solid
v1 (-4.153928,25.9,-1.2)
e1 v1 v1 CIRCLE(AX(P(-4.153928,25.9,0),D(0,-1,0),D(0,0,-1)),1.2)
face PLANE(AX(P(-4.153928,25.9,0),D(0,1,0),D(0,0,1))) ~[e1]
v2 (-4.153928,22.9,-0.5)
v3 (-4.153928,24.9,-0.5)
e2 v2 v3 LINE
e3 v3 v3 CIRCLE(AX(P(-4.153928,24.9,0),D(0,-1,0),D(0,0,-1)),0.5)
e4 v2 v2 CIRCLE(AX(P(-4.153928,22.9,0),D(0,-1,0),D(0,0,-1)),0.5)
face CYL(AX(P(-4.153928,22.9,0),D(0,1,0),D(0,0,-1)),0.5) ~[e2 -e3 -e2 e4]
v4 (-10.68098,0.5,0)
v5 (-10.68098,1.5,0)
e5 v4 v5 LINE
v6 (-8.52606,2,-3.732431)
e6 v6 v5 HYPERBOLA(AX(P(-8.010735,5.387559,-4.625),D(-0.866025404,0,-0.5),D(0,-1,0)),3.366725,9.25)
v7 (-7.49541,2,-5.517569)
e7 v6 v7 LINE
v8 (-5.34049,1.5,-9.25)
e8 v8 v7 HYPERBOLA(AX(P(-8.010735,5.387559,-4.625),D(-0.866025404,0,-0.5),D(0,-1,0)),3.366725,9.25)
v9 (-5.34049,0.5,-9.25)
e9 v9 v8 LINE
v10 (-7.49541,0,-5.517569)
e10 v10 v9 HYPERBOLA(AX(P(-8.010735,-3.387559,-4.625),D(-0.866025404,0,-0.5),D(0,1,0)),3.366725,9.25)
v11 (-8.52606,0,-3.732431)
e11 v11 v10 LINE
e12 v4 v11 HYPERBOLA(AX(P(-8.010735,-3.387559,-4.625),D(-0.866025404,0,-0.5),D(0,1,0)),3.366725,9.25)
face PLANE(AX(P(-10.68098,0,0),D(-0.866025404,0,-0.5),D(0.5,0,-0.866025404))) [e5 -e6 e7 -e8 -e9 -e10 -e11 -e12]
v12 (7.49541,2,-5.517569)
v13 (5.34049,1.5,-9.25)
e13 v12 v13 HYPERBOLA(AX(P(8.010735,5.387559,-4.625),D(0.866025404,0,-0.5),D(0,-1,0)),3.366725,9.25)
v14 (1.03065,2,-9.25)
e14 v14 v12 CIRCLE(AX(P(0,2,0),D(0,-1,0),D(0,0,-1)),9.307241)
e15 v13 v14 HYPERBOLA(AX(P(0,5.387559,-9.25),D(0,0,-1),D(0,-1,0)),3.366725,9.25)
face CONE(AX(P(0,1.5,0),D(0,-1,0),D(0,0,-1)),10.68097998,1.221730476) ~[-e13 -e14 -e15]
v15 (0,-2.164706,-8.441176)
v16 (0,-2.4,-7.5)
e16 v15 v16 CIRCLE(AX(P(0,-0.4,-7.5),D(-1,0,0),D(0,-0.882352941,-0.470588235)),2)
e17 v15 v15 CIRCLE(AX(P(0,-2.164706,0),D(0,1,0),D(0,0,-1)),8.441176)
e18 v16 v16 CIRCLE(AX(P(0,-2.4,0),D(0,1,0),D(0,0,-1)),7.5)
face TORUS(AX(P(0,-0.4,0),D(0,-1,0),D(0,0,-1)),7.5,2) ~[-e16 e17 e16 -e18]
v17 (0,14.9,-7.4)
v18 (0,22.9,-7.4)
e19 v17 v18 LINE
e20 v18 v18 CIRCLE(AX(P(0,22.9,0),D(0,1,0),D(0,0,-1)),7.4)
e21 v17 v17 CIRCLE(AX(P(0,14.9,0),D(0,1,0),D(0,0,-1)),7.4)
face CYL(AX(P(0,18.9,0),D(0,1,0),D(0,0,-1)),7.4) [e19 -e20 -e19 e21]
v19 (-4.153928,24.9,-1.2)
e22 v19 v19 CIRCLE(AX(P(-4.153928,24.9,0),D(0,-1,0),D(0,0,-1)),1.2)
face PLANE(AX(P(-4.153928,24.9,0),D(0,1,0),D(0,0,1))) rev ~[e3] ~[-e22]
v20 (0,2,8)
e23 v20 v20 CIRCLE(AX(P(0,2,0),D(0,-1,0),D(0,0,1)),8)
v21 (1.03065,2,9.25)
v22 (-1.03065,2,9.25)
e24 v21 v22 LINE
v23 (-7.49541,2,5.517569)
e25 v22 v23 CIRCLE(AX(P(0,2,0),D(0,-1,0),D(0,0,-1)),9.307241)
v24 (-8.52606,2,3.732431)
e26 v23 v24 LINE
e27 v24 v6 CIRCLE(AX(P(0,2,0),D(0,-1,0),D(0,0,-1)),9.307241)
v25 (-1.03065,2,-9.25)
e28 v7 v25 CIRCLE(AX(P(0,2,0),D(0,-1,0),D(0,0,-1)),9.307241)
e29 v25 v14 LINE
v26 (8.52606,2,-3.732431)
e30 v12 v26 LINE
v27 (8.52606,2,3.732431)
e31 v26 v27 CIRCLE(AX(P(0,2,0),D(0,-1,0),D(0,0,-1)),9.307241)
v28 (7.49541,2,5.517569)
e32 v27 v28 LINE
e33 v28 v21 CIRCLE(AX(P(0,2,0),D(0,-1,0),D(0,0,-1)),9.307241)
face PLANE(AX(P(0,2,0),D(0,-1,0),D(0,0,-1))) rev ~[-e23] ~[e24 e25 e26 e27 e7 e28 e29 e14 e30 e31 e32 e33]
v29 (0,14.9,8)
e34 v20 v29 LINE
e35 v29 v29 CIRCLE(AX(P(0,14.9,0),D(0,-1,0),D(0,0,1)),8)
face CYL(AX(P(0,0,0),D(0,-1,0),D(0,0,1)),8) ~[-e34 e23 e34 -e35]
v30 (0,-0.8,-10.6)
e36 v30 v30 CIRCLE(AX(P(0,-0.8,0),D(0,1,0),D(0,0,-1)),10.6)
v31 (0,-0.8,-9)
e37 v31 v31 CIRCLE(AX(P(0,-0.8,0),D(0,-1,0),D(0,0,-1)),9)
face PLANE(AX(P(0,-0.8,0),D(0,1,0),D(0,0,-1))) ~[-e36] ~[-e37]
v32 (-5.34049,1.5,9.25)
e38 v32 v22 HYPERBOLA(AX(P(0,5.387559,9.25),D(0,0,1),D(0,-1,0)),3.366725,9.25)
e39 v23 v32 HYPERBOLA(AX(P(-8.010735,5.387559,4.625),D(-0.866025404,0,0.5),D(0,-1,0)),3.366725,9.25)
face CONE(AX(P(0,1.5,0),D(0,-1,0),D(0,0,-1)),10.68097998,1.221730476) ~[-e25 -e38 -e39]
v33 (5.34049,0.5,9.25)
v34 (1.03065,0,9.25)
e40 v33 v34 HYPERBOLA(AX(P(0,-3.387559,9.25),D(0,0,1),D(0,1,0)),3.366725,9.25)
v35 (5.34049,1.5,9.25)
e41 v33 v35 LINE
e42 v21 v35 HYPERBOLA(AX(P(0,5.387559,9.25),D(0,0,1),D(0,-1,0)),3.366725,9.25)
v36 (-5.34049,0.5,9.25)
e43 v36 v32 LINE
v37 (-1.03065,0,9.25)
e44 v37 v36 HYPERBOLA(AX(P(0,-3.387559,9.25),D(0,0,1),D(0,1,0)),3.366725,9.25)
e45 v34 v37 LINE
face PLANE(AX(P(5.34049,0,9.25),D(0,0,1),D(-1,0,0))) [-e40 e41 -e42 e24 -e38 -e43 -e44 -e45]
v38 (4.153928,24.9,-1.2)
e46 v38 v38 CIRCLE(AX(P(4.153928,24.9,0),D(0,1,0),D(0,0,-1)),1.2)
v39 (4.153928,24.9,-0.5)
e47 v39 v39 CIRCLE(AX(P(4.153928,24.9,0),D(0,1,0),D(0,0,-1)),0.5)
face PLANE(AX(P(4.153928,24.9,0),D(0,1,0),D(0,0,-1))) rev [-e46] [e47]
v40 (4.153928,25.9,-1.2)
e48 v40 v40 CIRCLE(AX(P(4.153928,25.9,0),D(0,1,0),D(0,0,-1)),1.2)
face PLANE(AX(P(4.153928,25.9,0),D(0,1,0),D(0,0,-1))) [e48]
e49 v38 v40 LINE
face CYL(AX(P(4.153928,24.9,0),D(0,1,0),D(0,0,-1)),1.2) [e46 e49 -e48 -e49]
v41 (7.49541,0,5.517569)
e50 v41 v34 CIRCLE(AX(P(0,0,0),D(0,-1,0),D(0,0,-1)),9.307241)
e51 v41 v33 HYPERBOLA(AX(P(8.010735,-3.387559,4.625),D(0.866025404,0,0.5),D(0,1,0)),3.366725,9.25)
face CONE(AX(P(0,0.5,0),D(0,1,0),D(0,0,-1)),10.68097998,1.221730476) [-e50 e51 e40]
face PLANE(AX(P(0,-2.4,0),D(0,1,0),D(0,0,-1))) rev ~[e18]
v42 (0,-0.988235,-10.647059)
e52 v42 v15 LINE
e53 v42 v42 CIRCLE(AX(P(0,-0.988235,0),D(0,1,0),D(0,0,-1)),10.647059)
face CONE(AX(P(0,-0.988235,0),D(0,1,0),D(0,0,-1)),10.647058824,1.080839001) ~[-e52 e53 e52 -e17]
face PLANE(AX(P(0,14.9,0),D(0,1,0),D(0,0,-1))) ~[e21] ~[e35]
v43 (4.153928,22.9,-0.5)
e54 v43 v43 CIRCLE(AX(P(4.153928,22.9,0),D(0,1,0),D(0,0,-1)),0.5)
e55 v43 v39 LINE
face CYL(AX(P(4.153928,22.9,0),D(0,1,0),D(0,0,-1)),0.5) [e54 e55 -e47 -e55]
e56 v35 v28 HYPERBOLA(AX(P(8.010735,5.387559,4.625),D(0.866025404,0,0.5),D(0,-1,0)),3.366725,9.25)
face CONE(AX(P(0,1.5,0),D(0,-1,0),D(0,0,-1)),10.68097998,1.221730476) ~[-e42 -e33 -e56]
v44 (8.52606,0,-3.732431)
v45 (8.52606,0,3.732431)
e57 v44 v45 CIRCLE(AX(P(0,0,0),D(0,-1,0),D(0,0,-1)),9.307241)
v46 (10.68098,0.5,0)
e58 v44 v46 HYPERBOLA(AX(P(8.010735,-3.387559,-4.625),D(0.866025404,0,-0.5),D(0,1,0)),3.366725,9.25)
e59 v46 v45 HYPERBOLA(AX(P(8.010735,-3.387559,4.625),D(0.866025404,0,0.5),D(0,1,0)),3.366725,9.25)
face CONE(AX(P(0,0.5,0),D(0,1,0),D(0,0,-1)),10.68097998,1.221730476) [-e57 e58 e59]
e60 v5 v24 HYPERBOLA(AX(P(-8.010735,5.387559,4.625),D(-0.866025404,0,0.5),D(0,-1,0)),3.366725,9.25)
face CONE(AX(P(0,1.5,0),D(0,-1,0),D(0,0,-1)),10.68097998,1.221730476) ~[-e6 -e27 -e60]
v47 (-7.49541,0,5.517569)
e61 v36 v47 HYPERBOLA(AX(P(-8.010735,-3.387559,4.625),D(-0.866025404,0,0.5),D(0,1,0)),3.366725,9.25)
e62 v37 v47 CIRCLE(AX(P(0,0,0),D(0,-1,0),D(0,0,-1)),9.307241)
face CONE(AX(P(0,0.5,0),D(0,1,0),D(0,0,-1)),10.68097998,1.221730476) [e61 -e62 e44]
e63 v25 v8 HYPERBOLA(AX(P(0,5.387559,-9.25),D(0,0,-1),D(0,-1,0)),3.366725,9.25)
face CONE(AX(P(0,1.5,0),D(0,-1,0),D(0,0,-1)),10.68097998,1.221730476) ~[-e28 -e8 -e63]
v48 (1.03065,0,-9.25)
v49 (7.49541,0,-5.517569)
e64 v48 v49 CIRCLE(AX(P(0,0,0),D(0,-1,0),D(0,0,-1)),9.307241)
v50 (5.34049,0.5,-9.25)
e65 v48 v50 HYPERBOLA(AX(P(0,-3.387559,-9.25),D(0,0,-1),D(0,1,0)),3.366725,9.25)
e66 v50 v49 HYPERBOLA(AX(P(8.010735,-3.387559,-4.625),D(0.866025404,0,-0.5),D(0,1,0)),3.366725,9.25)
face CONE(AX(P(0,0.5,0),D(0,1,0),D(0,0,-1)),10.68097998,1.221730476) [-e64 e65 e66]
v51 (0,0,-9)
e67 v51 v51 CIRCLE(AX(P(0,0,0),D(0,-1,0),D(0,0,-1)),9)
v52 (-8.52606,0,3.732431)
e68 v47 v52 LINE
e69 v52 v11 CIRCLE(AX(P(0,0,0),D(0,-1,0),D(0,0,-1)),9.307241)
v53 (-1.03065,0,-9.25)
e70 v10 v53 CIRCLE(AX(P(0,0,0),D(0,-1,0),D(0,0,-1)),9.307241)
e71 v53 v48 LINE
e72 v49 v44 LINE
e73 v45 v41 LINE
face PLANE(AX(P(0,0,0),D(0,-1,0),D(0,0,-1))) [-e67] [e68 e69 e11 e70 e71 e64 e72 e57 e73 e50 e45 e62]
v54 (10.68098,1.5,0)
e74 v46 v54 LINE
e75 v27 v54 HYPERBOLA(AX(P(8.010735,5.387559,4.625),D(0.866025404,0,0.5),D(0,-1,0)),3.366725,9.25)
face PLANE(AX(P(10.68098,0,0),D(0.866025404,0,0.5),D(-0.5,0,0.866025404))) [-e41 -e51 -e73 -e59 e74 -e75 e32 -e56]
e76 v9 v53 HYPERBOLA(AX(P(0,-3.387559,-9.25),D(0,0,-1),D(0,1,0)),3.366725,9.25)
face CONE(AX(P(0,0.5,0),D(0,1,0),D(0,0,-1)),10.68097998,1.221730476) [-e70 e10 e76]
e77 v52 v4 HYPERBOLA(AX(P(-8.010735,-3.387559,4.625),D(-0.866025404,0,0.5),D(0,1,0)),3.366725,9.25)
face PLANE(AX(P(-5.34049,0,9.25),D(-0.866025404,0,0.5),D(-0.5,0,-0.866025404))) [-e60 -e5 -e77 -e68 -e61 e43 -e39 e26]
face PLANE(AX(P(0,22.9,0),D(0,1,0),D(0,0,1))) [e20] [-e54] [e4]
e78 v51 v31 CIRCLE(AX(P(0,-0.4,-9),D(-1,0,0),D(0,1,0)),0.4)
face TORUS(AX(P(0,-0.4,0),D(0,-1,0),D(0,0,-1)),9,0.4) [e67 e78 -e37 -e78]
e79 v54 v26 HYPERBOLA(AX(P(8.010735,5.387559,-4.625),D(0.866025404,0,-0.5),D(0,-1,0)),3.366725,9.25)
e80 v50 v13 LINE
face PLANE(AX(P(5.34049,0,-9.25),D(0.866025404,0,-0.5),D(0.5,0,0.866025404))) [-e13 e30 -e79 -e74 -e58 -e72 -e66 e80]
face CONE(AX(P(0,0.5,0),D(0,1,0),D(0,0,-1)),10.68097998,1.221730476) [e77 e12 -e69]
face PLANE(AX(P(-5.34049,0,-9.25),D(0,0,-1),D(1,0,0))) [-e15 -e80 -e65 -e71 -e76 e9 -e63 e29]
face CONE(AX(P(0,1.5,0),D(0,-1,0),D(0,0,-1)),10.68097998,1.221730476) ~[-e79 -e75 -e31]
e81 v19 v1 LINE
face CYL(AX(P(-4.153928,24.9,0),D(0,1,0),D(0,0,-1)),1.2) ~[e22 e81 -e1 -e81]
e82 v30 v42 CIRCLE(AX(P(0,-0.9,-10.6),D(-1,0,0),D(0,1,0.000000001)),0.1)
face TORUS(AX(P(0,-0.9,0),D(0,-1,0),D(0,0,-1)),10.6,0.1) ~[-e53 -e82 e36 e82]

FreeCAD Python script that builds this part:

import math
import FreeCAD as App
import Part
import Sketcher

V = App.Vector
Q = App.Units.Quantity


def edges_at(feature, points):
    """Names of the edges that pass closest to the given points."""
    edges = feature.Shape.Edges
    near = lambda p: min(range(len(edges)), key=lambda i: edges[i].distToShape(Part.Vertex(*p))[0])
    return sorted({f"Edge{near(p) + 1}" for p in points})

doc = App.newDocument("Part")
body = doc.addObject("PartDesign::Body", "Body")

sketch1 = body.newObject("Sketcher::SketchObject", "Sketch")
sketch1.AttachmentSupport = (doc.getObject("XZ_Plane"), [""])
sketch1.MapMode = "FlatFace"
sketch1.addGeometry(Part.Circle(V(0, 0, 0), V(0, 0, 1), 8), False)
sketch1.addConstraint(Sketcher.Constraint("Coincident", 0, 3, -1, 1))
sketch1.addConstraint(Sketcher.Constraint("Diameter", 0, Q("16 mm")))
pad1 = body.newObject("PartDesign::Pad", "Pad")
pad1.Profile = sketch1
pad1.Length = 22.9
pad1.Reversed = True

sketch2 = body.newObject("Sketcher::SketchObject", "Sketch001")
sketch2.AttachmentSupport = (doc.getObject("XZ_Plane"), [""])
sketch2.MapMode = "FlatFace"
sketch2.addGeometry(Part.Circle(V(0, 0, 0), V(0, 0, 1), 11), False)
sketch2.addConstraint(Sketcher.Constraint("Coincident", 0, 3, -1, 1))
sketch2.addConstraint(Sketcher.Constraint("Diameter", 0, Q("21.36196 mm")))
pad2 = body.newObject("PartDesign::Pad", "Pad001")
pad2.Profile = sketch2
pad2.Length = 2
pad2.Reversed = True
doc.recompute()

chamfer = body.newObject("PartDesign::Chamfer", "Chamfer")
chamfer.Base = (pad2, edges_at(pad2, [(0, 0, 10.681)]))
chamfer.ChamferType = "Two distances"
chamfer.Size = 0.5
chamfer.Size2 = 1.373739
doc.recompute()

chamfer2 = body.newObject("PartDesign::Chamfer", "Chamfer001")
chamfer2.Base = (chamfer, edges_at(chamfer, [(0, 2, 10.681)]))
chamfer2.ChamferType = "Two distances"
chamfer2.Size = 0.5
chamfer2.Size2 = 1.373739

sketch3 = body.newObject("Sketcher::SketchObject", "Sketch002")
sketch3.AttachmentSupport = (doc.getObject("XZ_Plane"), [""])
sketch3.MapMode = "FlatFace"
sketch3.addGeometry(Part.LineSegment(V(5, -9, 0), V(11, 0, 0)), False)
sketch3.addGeometry(Part.ArcOfCircle(Part.Circle(V(0, 0, 0), V(0, 0, 1), 11), math.radians(-60), math.radians(0)), False)
sketch3.addGeometry(Part.LineSegment(V(-5, -9, 0), V(5, -9, 0)), False)
sketch3.addGeometry(Part.ArcOfCircle(Part.Circle(V(0, 0, 0), V(0, 0, 1), 11), math.radians(-120), math.radians(-60)), False)
sketch3.addGeometry(Part.ArcOfCircle(Part.Circle(V(0, 0, 0), V(0, 0, 1), 11), math.radians(0), math.radians(60)), False)
sketch3.addGeometry(Part.LineSegment(V(11, 0, 0), V(5, 9, 0)), False)
sketch3.addGeometry(Part.ArcOfCircle(Part.Circle(V(0, 0, 0), V(0, 0, 1), 11), math.radians(60), math.radians(120)), False)
sketch3.addGeometry(Part.LineSegment(V(5, 9, 0), V(-5, 9, 0)), False)
sketch3.addGeometry(Part.ArcOfCircle(Part.Circle(V(0, 0, 0), V(0, 0, 1), 11), math.radians(120), math.radians(180)), False)
sketch3.addGeometry(Part.LineSegment(V(-5, 9, 0), V(-11, 0, 0)), False)
sketch3.addGeometry(Part.LineSegment(V(-11, 0, 0), V(-5, -9, 0)), False)
sketch3.addGeometry(Part.ArcOfCircle(Part.Circle(V(0, 0, 0), V(0, 0, 1), 11), math.radians(180), math.radians(240)), False)
sketch3.addConstraint(Sketcher.Constraint("Coincident", 0, 1, 1, 1))
sketch3.addConstraint(Sketcher.Constraint("Coincident", 1, 2, 0, 2))
sketch3.addConstraint(Sketcher.Constraint("Coincident", 2, 1, 3, 1))
sketch3.addConstraint(Sketcher.Constraint("Coincident", 3, 2, 2, 2))
sketch3.addConstraint(Sketcher.Constraint("Coincident", 4, 1, 5, 1))
sketch3.addConstraint(Sketcher.Constraint("Coincident", 5, 2, 4, 2))
sketch3.addConstraint(Sketcher.Constraint("Coincident", 6, 1, 7, 1))
sketch3.addConstraint(Sketcher.Constraint("Coincident", 7, 2, 6, 2))
sketch3.addConstraint(Sketcher.Constraint("Coincident", 8, 1, 9, 1))
sketch3.addConstraint(Sketcher.Constraint("Coincident", 9, 2, 8, 2))
sketch3.addConstraint(Sketcher.Constraint("Coincident", 10, 1, 11, 1))
sketch3.addConstraint(Sketcher.Constraint("Coincident", 11, 2, 10, 2))
sketch3.addConstraint(Sketcher.Constraint("Horizontal", 2))
sketch3.addConstraint(Sketcher.Constraint("Horizontal", 7))
sketch3.addConstraint(Sketcher.Constraint("Coincident", 1, 3, -1, 1))
sketch3.addConstraint(Sketcher.Constraint("Coincident", 3, 3, -1, 1))
sketch3.addConstraint(Sketcher.Constraint("Coincident", 4, 3, -1, 1))
sketch3.addConstraint(Sketcher.Constraint("Coincident", 6, 3, -1, 1))
sketch3.addConstraint(Sketcher.Constraint("Coincident", 8, 3, -1, 1))
sketch3.addConstraint(Sketcher.Constraint("Coincident", 11, 3, -1, 1))
sketch3.addConstraint(Sketcher.Constraint("Coincident", 3, 2, 0, 1))
sketch3.addConstraint(Sketcher.Constraint("Coincident", 4, 1, 1, 2))
sketch3.addConstraint(Sketcher.Constraint("Coincident", 6, 1, 5, 2))
sketch3.addConstraint(Sketcher.Constraint("Coincident", 8, 1, 7, 2))
sketch3.addConstraint(Sketcher.Constraint("Coincident", 10, 1, 9, 2))
sketch3.addConstraint(Sketcher.Constraint("PointOnObject", 1, 2, -1))
sketch3.addConstraint(Sketcher.Constraint("PointOnObject", 9, 2, -1))
sketch3.addConstraint(Sketcher.Constraint("Parallel", 0, 9))
sketch3.addConstraint(Sketcher.Constraint("Parallel", 5, 10))
sketch3.addConstraint(Sketcher.Constraint("Angle", 0, Q("60 deg")))
sketch3.addConstraint(Sketcher.Constraint("DistanceY", 0, 1, -1, 1, Q("9.25 mm")))
pocket1 = body.newObject("PartDesign::Pocket", "Pocket")
pocket1.Profile = sketch3
pocket1.Length = 2

sketch4 = body.newObject("Sketcher::SketchObject", "Sketch003")
sketch4.AttachmentSupport = (doc.getObject("XY_Plane"), [""])
sketch4.MapMode = "FlatFace"
sketch4.addGeometry(Part.LineSegment(V(9, 0, 0), V(0, 0, 0)), False)
sketch4.addGeometry(Part.LineSegment(V(0, 0, 0), V(0, -0.8, 0)), False)
sketch4.addGeometry(Part.LineSegment(V(0, -0.8, 0), V(9, -0.8, 0)), False)
sketch4.addGeometry(Part.ArcOfCircle(Part.Circle(V(9, -0.4, 0), V(0, 0, 1), 0.4), math.radians(-90), math.radians(90)), False)
sketch4.addConstraint(Sketcher.Constraint("Coincident", 0, 2, 1, 1))
sketch4.addConstraint(Sketcher.Constraint("Coincident", 1, 2, 2, 1))
sketch4.addConstraint(Sketcher.Constraint("Tangent", 2, 2, 3, 1))
sketch4.addConstraint(Sketcher.Constraint("Tangent", 3, 2, 0, 1))
sketch4.addConstraint(Sketcher.Constraint("Horizontal", 0))
sketch4.addConstraint(Sketcher.Constraint("Vertical", 1))
sketch4.addConstraint(Sketcher.Constraint("Horizontal", 2))
sketch4.addConstraint(Sketcher.Constraint("Coincident", 0, 2, -1, 1))
sketch4.addConstraint(Sketcher.Constraint("Radius", 3, Q("0.4 mm")))
sketch4.addConstraint(Sketcher.Constraint("DistanceX", 0, 2, 0, 1, Q("9 mm")))
revolution = body.newObject("PartDesign::Revolution", "Revolution")
revolution.Profile = sketch4
revolution.ReferenceAxis = (sketch4, ["V_Axis"])
revolution.Angle = 360

sketch5 = body.newObject("Sketcher::SketchObject", "Sketch004")
sketch5.AttachmentSupport = (doc.getObject("XY_Plane"), [""])
sketch5.MapMode = "FlatFace"
sketch5.addGeometry(Part.LineSegment(V(10.6, -0.8, 0), V(0, -0.8, 0)), False)
sketch5.addGeometry(Part.LineSegment(V(0, -0.8, 0), V(0, -2.4, 0)), False)
sketch5.addGeometry(Part.LineSegment(V(0, -2.4, 0), V(7.5, -2.4, 0)), False)
sketch5.addGeometry(Part.ArcOfCircle(Part.Circle(V(7.5, -0.4, 0), V(0, 0, 1), 2), math.radians(-90), math.radians(-62)), False)
sketch5.addGeometry(Part.LineSegment(V(8.44, -2.16, 0), V(10.65, -0.99, 0)), False)
sketch5.addGeometry(Part.ArcOfCircle(Part.Circle(V(10.6, -0.9, 0), V(0, 0, 1), 0.1), math.radians(-62), math.radians(90)), False)
sketch5.addConstraint(Sketcher.Constraint("Coincident", 0, 2, 1, 1))
sketch5.addConstraint(Sketcher.Constraint("Coincident", 1, 2, 2, 1))
sketch5.addConstraint(Sketcher.Constraint("Tangent", 2, 2, 3, 1))
sketch5.addConstraint(Sketcher.Constraint("Tangent", 3, 2, 4, 1))
sketch5.addConstraint(Sketcher.Constraint("Tangent", 4, 2, 5, 1))
sketch5.addConstraint(Sketcher.Constraint("Tangent", 5, 2, 0, 1))
sketch5.addConstraint(Sketcher.Constraint("Horizontal", 0))
sketch5.addConstraint(Sketcher.Constraint("Vertical", 1))
sketch5.addConstraint(Sketcher.Constraint("Horizontal", 2))
sketch5.addConstraint(Sketcher.Constraint("PointOnObject", 0, 2, -2))
sketch5.addConstraint(Sketcher.Constraint("Radius", 3, Q("2 mm")))
sketch5.addConstraint(Sketcher.Constraint("Radius", 5, Q("0.1 mm")))
sketch5.addConstraint(Sketcher.Constraint("DistanceX", 0, 2, 0, 1, Q("10.6 mm")))
sketch5.addConstraint(Sketcher.Constraint("DistanceX", 2, 1, 2, 2, Q("7.5 mm")))
sketch5.addConstraint(Sketcher.Constraint("DistanceY", 1, 2, 1, 1, Q("1.6 mm")))
sketch5.addConstraint(Sketcher.Constraint("DistanceY", 3, 3, -1, 1, Q("0.4 mm")))
revolution2 = body.newObject("PartDesign::Revolution", "Revolution001")
revolution2.Profile = sketch5
revolution2.ReferenceAxis = (sketch5, ["V_Axis"])
revolution2.Angle = 360

sketch6 = body.newObject("Sketcher::SketchObject", "Sketch005")
sketch6.AttachmentSupport = (doc.getObject("XY_Plane"), [""])
sketch6.MapMode = "FlatFace"
sketch6.addGeometry(Part.LineSegment(V(7.4, 22.9, 0), V(7.4, 14.9, 0)), False)
sketch6.addGeometry(Part.LineSegment(V(7.4, 14.9, 0), V(8, 14.9, 0)), False)
sketch6.addGeometry(Part.LineSegment(V(8, 14.9, 0), V(8, 22.9, 0)), False)
sketch6.addGeometry(Part.LineSegment(V(8, 22.9, 0), V(7.4, 22.9, 0)), False)
sketch6.addConstraint(Sketcher.Constraint("Coincident", 0, 2, 1, 1))
sketch6.addConstraint(Sketcher.Constraint("Coincident", 1, 2, 2, 1))
sketch6.addConstraint(Sketcher.Constraint("Coincident", 2, 2, 3, 1))
sketch6.addConstraint(Sketcher.Constraint("Coincident", 3, 2, 0, 1))
sketch6.addConstraint(Sketcher.Constraint("Vertical", 0))
sketch6.addConstraint(Sketcher.Constraint("Horizontal", 1))
sketch6.addConstraint(Sketcher.Constraint("Vertical", 2))
sketch6.addConstraint(Sketcher.Constraint("Horizontal", 3))
sketch6.addConstraint(Sketcher.Constraint("DistanceY", 0, 2, 0, 1, Q("8 mm")))
sketch6.addConstraint(Sketcher.Constraint("DistanceX", 1, 1, 1, 2, Q("0.6 mm")))
sketch6.addConstraint(Sketcher.Constraint("DistanceX", -1, 1, 1, 2, Q("8 mm")))
sketch6.addConstraint(Sketcher.Constraint("DistanceY", -1, 1, 0, 2, Q("14.9 mm")))
groove = body.newObject("PartDesign::Groove", "Groove")
groove.Profile = sketch6
groove.ReferenceAxis = (sketch6, ["V_Axis"])
groove.Angle = 360

sketch7 = body.newObject("Sketcher::SketchObject", "Sketch006")
sketch7.AttachmentSupport = (doc.getObject("XY_Plane"), [""])
sketch7.MapMode = "FlatFace"
sketch7.addGeometry(Part.LineSegment(V(4.2, 22.9, 0), V(4.7, 22.9, 0)), False)
sketch7.addGeometry(Part.LineSegment(V(4.7, 22.9, 0), V(4.7, 24.9, 0)), False)
sketch7.addGeometry(Part.LineSegment(V(4.7, 24.9, 0), V(5.4, 24.9, 0)), False)
sketch7.addGeometry(Part.LineSegment(V(5.4, 24.9, 0), V(5.4, 25.9, 0)), False)
sketch7.addGeometry(Part.LineSegment(V(5.4, 25.9, 0), V(4.2, 25.9, 0)), False)
sketch7.addGeometry(Part.LineSegment(V(4.2, 25.9, 0), V(4.2, 22.9, 0)), False)
sketch7.addGeometry(Part.LineSegment(V(4.2, 22.9, 0), V(4.2, 25.9, 0)), True)
sketch7.addConstraint(Sketcher.Constraint("Coincident", 0, 2, 1, 1))
sketch7.addConstraint(Sketcher.Constraint("Coincident", 1, 2, 2, 1))
sketch7.addConstraint(Sketcher.Constraint("Coincident", 2, 2, 3, 1))
sketch7.addConstraint(Sketcher.Constraint("Coincident", 3, 2, 4, 1))
sketch7.addConstraint(Sketcher.Constraint("Coincident", 4, 2, 5, 1))
sketch7.addConstraint(Sketcher.Constraint("Coincident", 5, 2, 0, 1))
sketch7.addConstraint(Sketcher.Constraint("Horizontal", 0))
sketch7.addConstraint(Sketcher.Constraint("Vertical", 1))
sketch7.addConstraint(Sketcher.Constraint("Horizontal", 2))
sketch7.addConstraint(Sketcher.Constraint("Vertical", 3))
sketch7.addConstraint(Sketcher.Constraint("Horizontal", 4))
sketch7.addConstraint(Sketcher.Constraint("Vertical", 5))
sketch7.addConstraint(Sketcher.Constraint("Vertical", 6))
sketch7.addConstraint(Sketcher.Constraint("Coincident", 6, 1, 5, 2))
sketch7.addConstraint(Sketcher.Constraint("Horizontal", 3, 2, 6, 2))
sketch7.addConstraint(Sketcher.Constraint("DistanceY", 1, 1, 1, 2, Q("2 mm")))
sketch7.addConstraint(Sketcher.Constraint("DistanceY", 3, 1, 3, 2, Q("1 mm")))
sketch7.addConstraint(Sketcher.Constraint("DistanceX", 0, 1, 0, 2, Q("0.5 mm")))
sketch7.addConstraint(Sketcher.Constraint("DistanceX", 2, 1, 2, 2, Q("0.7 mm")))
sketch7.addConstraint(Sketcher.Constraint("DistanceY", -1, 1, 0, 2, Q("22.9 mm")))
sketch7.addConstraint(Sketcher.Constraint("DistanceX", -1, 1, 0, 2, Q("4.653928 mm")))
revolution3 = body.newObject("PartDesign::Revolution", "Revolution002")
revolution3.Profile = sketch7
revolution3.ReferenceAxis = (sketch7, ["Axis0"])
revolution3.Angle = 360
doc.recompute()

mirrored = body.newObject("PartDesign::Mirrored", "Mirrored")
mirrored.Originals = [revolution3]
mirrored.MirrorPlane = (doc.getObject("YZ_Plane"), [""])
body.Tip = mirrored

doc.recompute()
